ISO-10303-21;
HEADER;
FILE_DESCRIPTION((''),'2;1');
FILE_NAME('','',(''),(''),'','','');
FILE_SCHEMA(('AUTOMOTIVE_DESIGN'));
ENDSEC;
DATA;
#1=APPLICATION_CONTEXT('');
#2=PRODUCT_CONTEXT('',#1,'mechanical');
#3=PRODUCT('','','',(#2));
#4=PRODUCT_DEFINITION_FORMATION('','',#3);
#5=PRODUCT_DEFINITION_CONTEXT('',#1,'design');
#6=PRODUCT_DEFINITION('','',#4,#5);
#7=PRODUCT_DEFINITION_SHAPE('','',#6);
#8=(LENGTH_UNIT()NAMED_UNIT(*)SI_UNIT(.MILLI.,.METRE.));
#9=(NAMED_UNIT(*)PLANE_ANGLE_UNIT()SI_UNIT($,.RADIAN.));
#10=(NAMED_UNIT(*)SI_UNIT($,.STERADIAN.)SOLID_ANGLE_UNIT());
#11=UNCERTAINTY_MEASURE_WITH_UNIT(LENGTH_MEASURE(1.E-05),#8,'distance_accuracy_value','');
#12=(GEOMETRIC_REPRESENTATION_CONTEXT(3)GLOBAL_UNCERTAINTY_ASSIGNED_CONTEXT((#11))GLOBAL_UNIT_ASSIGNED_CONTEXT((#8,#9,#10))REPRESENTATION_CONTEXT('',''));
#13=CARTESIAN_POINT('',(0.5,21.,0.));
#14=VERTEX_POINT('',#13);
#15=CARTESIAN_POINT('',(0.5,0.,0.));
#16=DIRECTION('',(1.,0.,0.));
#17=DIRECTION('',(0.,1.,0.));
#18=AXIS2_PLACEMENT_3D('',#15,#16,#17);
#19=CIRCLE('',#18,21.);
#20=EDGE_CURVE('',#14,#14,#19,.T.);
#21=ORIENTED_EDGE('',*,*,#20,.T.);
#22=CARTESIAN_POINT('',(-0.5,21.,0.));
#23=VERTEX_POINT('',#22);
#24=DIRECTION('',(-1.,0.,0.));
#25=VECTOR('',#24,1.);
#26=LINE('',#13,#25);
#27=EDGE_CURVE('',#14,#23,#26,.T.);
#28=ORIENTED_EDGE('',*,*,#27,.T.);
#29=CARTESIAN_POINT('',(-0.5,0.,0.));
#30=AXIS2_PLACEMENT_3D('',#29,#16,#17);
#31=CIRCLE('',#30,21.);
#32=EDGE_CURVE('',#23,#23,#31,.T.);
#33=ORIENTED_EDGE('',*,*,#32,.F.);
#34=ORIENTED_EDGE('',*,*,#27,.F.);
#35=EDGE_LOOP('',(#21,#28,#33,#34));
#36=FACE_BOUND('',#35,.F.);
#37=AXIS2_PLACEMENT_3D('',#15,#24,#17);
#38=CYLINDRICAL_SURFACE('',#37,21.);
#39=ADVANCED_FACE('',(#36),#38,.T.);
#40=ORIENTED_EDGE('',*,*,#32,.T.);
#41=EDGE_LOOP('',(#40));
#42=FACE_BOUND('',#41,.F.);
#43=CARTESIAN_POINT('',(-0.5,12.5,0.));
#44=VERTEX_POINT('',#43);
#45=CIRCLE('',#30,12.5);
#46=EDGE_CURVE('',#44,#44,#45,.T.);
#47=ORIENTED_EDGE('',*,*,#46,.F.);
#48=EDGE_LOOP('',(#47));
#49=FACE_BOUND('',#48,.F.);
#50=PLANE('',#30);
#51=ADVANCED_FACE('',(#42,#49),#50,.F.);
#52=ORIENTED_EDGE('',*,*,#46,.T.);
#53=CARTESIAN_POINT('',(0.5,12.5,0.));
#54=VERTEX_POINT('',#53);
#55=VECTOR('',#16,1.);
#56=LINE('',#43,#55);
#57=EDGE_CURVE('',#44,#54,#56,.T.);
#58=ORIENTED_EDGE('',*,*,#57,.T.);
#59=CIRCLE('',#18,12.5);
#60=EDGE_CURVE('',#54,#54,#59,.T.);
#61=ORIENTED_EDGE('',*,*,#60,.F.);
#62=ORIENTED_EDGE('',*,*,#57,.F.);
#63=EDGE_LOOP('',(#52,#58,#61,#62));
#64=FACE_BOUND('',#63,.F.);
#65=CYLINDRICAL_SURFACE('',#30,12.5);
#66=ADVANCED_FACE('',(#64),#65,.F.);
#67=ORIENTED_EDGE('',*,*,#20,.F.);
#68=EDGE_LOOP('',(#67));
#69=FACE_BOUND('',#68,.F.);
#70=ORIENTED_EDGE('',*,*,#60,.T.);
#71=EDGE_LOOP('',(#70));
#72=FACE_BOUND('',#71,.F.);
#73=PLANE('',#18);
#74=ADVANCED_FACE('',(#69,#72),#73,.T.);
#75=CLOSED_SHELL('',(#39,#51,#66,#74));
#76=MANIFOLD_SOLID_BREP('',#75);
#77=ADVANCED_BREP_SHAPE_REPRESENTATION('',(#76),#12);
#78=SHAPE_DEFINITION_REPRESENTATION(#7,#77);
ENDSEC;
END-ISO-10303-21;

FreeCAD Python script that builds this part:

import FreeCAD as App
import Part
import Sketcher

V = App.Vector
Q = App.Units.Quantity

doc = App.newDocument("Part")
body = doc.addObject("PartDesign::Body", "Body")

# Sketch on XY plane
sketch1 = body.newObject("Sketcher::SketchObject", "Sketch")
sketch1.AttachmentSupport = (doc.getObject("XY_Plane"), [""])
sketch1.MapMode = "FlatFace"
sketch1.addGeometry(Part.LineSegment(V(-0.5, 21, 0), V(-0.5, 12.5, 0)), False)
sketch1.addGeometry(Part.LineSegment(V(-0.5, 12.5, 0), V(0.5, 12.5, 0)), False)
sketch1.addGeometry(Part.LineSegment(V(0.5, 12.5, 0), V(0.5, 21, 0)), False)
sketch1.addGeometry(Part.LineSegment(V(0.5, 21, 0), V(-0.5, 21, 0)), False)
sketch1.addConstraint(Sketcher.Constraint("Coincident", 0, 2, 1, 1))
sketch1.addConstraint(Sketcher.Constraint("Coincident", 1, 2, 2, 1))
sketch1.addConstraint(Sketcher.Constraint("Coincident", 2, 2, 3, 1))
sketch1.addConstraint(Sketcher.Constraint("Coincident", 3, 2, 0, 1))
sketch1.addConstraint(Sketcher.Constraint("Vertical", 0))
sketch1.addConstraint(Sketcher.Constraint("Horizontal", 1))
sketch1.addConstraint(Sketcher.Constraint("Vertical", 2))
sketch1.addConstraint(Sketcher.Constraint("Horizontal", 3))
sketch1.addConstraint(Sketcher.Constraint("DistanceX", 1, 1, 1, 2, Q("1 mm")))
sketch1.addConstraint(Sketcher.Constraint("DistanceY", 0, 2, 0, 1, Q("8.5 mm")))
sketch1.addConstraint(Sketcher.Constraint("DistanceY", -1, 1, 2, 2, Q("21 mm")))
sketch1.addConstraint(Sketcher.Constraint("DistanceX", 0, 2, -1, 1, Q("0.5 mm")))
revolution = body.newObject("PartDesign::Revolution", "Revolution")
revolution.Profile = sketch1
revolution.ReferenceAxis = (sketch1, ["H_Axis"])
revolution.Angle = 360

doc.recompute()
